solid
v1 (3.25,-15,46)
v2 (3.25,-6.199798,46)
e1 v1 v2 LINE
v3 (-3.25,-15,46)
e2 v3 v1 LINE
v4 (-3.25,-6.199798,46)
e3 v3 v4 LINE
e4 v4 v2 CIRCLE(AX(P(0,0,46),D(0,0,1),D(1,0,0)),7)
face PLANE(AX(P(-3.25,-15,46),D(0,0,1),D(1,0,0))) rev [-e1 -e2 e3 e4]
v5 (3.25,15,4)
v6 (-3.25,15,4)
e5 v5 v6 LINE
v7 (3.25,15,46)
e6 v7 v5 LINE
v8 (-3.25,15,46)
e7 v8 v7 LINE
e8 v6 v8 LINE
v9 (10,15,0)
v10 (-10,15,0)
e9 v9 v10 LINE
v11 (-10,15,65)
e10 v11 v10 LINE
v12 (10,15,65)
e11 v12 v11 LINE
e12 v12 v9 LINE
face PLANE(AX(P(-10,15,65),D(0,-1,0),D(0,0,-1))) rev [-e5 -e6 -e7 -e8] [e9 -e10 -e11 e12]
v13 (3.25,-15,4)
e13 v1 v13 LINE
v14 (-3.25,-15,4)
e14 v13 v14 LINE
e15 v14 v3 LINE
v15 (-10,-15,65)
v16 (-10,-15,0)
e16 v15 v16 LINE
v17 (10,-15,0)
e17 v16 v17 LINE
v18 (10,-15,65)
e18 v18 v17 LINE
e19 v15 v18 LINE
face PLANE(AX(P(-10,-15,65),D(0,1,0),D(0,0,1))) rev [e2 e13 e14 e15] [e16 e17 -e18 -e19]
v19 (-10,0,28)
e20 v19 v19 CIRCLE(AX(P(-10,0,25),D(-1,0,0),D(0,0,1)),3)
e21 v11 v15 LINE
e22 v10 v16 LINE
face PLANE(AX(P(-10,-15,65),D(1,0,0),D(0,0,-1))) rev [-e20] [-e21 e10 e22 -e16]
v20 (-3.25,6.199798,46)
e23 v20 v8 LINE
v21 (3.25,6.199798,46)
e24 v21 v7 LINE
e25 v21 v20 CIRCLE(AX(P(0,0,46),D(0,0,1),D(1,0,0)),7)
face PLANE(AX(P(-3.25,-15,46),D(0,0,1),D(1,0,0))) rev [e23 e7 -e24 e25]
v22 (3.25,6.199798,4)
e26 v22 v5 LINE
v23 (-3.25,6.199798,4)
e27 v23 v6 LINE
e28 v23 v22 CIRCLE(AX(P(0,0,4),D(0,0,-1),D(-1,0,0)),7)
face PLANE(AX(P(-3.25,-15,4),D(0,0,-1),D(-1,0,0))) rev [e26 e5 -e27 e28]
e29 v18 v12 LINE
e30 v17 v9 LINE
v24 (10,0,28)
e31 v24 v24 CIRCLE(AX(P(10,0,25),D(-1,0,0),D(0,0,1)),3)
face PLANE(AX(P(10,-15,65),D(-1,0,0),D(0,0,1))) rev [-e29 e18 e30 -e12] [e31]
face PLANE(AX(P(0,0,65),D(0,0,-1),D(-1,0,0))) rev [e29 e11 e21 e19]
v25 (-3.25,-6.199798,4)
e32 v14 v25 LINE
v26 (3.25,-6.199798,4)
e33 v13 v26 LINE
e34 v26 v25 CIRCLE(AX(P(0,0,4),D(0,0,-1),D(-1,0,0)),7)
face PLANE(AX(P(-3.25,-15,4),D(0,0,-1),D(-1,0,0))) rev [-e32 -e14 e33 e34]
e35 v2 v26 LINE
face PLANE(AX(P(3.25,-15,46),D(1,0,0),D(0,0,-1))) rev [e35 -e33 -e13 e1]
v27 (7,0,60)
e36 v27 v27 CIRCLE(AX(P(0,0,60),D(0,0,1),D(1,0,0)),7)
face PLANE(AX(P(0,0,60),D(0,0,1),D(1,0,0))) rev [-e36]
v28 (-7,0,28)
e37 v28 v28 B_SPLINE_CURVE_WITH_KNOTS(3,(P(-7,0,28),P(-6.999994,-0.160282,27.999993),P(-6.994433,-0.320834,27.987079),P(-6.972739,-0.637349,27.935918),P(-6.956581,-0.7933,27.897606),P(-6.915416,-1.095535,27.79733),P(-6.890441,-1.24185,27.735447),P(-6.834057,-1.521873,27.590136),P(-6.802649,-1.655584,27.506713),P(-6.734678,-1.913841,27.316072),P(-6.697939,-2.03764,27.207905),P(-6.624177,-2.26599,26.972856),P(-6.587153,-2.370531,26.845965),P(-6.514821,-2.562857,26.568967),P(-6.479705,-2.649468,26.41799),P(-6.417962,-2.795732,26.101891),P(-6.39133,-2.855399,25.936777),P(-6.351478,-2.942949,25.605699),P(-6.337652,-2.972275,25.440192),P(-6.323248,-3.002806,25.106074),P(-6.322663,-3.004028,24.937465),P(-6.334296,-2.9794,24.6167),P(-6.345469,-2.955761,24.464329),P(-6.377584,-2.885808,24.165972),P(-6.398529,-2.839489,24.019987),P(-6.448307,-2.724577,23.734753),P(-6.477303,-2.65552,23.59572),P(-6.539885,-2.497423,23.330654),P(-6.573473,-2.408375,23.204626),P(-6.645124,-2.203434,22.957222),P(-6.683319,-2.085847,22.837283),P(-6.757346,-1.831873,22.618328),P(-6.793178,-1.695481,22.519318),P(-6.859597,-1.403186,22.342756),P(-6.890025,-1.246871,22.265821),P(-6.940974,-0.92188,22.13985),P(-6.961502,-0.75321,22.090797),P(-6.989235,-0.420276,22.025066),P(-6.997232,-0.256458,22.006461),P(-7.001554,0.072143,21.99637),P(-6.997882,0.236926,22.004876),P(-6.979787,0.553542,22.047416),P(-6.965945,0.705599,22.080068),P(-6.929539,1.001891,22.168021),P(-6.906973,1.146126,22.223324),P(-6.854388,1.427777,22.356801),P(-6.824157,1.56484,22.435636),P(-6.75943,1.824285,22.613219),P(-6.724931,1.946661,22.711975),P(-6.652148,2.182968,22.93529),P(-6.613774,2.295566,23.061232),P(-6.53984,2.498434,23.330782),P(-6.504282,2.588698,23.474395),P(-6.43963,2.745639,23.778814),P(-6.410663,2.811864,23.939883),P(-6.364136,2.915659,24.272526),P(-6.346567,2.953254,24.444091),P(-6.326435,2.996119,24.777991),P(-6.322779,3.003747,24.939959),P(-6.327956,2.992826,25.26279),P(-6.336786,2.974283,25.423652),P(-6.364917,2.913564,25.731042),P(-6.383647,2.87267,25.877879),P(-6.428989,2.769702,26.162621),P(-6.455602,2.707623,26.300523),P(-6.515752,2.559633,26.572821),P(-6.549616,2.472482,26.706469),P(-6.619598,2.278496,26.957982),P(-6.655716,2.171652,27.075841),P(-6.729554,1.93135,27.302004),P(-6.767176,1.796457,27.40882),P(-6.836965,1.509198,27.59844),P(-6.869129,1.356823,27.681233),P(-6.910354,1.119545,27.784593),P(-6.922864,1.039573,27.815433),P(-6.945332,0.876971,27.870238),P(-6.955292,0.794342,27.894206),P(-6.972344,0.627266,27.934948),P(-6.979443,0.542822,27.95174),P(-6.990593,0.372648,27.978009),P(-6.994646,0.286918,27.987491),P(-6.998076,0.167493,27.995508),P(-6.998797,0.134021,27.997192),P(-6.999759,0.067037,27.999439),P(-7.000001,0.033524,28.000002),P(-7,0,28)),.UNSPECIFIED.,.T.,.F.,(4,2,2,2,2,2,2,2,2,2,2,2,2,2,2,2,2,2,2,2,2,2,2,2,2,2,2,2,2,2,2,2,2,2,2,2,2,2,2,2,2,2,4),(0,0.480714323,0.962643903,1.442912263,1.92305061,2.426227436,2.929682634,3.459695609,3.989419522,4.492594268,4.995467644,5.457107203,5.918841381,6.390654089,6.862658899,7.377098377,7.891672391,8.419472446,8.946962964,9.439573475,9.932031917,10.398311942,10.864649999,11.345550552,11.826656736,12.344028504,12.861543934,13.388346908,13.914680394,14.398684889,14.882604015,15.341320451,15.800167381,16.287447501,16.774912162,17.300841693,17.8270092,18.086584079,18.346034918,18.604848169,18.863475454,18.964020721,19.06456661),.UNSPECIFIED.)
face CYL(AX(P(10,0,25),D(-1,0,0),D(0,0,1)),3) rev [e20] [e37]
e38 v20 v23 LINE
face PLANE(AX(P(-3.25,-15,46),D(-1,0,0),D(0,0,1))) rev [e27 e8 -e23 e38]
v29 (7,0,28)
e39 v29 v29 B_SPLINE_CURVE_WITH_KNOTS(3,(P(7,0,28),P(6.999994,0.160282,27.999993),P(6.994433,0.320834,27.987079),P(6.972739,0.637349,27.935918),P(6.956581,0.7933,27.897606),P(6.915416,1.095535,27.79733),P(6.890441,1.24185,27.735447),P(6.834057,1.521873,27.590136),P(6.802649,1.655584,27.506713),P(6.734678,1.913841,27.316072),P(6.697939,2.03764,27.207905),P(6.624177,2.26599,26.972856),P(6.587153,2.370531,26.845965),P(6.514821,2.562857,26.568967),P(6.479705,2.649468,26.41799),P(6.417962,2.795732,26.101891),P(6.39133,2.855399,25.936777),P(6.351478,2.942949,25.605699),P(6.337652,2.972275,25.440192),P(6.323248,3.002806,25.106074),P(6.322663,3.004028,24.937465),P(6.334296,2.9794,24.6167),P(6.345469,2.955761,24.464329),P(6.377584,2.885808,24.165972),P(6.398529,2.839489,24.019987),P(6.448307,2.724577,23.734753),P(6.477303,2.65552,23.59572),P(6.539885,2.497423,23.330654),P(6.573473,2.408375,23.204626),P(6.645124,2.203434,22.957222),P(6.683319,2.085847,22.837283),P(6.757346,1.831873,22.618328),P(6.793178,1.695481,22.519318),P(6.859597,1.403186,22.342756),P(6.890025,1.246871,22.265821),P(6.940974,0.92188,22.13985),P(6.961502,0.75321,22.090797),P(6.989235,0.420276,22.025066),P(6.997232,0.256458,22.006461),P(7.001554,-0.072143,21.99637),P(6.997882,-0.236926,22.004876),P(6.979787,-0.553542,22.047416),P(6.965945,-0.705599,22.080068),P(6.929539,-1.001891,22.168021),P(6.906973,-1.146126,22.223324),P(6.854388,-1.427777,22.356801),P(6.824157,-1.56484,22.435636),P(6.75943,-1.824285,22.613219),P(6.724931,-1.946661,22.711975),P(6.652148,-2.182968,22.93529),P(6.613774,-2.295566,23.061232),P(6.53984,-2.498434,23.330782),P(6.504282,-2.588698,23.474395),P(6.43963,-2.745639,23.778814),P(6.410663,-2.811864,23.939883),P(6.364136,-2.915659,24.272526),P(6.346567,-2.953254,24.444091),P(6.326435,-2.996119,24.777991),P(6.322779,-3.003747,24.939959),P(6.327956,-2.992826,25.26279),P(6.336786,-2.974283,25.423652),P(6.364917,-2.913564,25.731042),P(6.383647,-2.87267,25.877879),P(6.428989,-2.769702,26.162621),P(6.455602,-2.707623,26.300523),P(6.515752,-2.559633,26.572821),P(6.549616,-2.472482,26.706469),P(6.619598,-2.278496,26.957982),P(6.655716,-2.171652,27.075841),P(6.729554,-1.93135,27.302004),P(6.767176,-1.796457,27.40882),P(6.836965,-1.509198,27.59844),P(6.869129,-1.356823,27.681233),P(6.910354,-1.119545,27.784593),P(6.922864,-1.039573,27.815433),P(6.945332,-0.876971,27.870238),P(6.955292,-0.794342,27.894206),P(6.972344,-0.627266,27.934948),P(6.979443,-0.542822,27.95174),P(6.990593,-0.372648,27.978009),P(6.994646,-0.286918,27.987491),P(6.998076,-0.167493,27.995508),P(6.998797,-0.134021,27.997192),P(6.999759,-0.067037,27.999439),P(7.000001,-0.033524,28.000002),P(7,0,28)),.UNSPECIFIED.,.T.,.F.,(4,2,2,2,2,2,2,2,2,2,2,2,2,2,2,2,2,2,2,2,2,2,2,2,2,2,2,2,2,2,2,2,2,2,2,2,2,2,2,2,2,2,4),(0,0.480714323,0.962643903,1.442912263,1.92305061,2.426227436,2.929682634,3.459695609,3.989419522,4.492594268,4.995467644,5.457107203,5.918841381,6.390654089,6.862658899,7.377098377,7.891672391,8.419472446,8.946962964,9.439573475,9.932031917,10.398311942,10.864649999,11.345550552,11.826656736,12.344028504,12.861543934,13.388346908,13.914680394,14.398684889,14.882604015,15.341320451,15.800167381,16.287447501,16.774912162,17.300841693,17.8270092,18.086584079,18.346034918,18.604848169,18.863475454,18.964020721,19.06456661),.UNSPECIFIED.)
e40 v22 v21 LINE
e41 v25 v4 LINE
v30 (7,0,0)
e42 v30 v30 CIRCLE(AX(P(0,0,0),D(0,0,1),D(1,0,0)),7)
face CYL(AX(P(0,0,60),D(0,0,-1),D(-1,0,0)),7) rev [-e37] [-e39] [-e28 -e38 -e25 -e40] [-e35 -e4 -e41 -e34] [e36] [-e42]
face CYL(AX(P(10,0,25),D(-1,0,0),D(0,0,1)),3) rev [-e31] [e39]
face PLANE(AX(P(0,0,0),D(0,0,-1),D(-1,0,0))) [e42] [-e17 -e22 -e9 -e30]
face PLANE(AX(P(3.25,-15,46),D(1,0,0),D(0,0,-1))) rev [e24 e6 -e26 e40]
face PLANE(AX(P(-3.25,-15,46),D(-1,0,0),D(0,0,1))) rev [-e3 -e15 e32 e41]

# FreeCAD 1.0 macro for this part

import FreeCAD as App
import Part
import Sketcher
from FreeCAD import Vector
Q = App.Units.Quantity

doc = App.newDocument("Part")
body = doc.addObject("PartDesign::Body", "Body")

sketch1 = body.newObject("Sketcher::SketchObject", "Sketch")
sketch1.AttachmentSupport = (doc.getObject("XY_Plane"), [""])
sketch1.MapMode = "FlatFace"
sketch1.addGeometry([
    Part.LineSegment(Vector(-10, 15, 0), Vector(-10, -15, 0)),
    Part.LineSegment(Vector(-10, -15, 0), Vector(10, -15, 0)),
    Part.LineSegment(Vector(10, -15, 0), Vector(10, 15, 0)),
    Part.LineSegment(Vector(10, 15, 0), Vector(-10, 15, 0)),
], False)
sketch1.addConstraint([
    Sketcher.Constraint("Coincident", 0, 2, 1, 1),
    Sketcher.Constraint("Coincident", 1, 2, 2, 1),
    Sketcher.Constraint("Coincident", 2, 2, 3, 1),
    Sketcher.Constraint("Coincident", 3, 2, 0, 1),
    Sketcher.Constraint("Vertical", 0),
    Sketcher.Constraint("Horizontal", 1),
    Sketcher.Constraint("Vertical", 2),
    Sketcher.Constraint("Horizontal", 3),
    Sketcher.Constraint("Symmetric", 0, 2, 2, 2, -1, 1),
    Sketcher.Constraint("DistanceX", 1, 1, 1, 2, Q("20 mm")),
    Sketcher.Constraint("DistanceY", 0, 2, 0, 1, Q("30 mm")),
])
pad1 = body.newObject("PartDesign::Pad", "Pad")
pad1.Profile = sketch1
pad1.Length = 65

sketch2 = body.newObject("Sketcher::SketchObject", "Sketch001")
sketch2.AttachmentSupport = (doc.getObject("XY_Plane"), [""])
sketch2.MapMode = "FlatFace"
sketch2.addGeometry(Part.Circle(Vector(0, 0, 0), Vector(0, 0, 1), 7), False)
sketch2.addConstraint([
    Sketcher.Constraint("Coincident", 0, 3, -1, 1),
    Sketcher.Constraint("Diameter", 0, Q("14 mm")),
])
pocket1 = body.newObject("PartDesign::Pocket", "Pocket")
pocket1.Profile = sketch2
pocket1.Length = 60
pocket1.Reversed = True

sketch3 = body.newObject("Sketcher::SketchObject", "Sketch002")
sketch3.AttachmentSupport = (doc.getObject("YZ_Plane"), [""])
sketch3.MapMode = "FlatFace"
sketch3.AttachmentOffset = App.Placement(Vector(0, 0, -10), App.Rotation())
sketch3.addGeometry(Part.Circle(Vector(0, 25, 0), Vector(0, 0, 1), 3), False)
sketch3.addConstraint([
    Sketcher.Constraint("PointOnObject", 0, 3, -2),
    Sketcher.Constraint("Diameter", 0, Q("6 mm")),
    Sketcher.Constraint("DistanceY", -1, 1, 0, 3, Q("25 mm")),
])
pocket2 = body.newObject("PartDesign::Pocket", "Pocket001")
pocket2.Profile = sketch3
pocket2.Type = "ThroughAll"
pocket2.Reversed = True

sketch4 = body.newObject("Sketcher::SketchObject", "Sketch003")
sketch4.AttachmentSupport = (doc.getObject("XZ_Plane"), [""])
sketch4.MapMode = "FlatFace"
sketch4.AttachmentOffset = App.Placement(Vector(0, 0, -15), App.Rotation())
sketch4.addGeometry([
    Part.LineSegment(Vector(-3.25, 4, 0), Vector(-3.25, 46, 0)),
    Part.LineSegment(Vector(-3.25, 46, 0), Vector(3.25, 46, 0)),
    Part.LineSegment(Vector(3.25, 46, 0), Vector(3.25, 4, 0)),
    Part.LineSegment(Vector(3.25, 4, 0), Vector(-3.25, 4, 0)),
], False)
sketch4.addConstraint([
    Sketcher.Constraint("Coincident", 0, 2, 1, 1),
    Sketcher.Constraint("Coincident", 1, 2, 2, 1),
    Sketcher.Constraint("Coincident", 2, 2, 3, 1),
    Sketcher.Constraint("Coincident", 3, 2, 0, 1),
    Sketcher.Constraint("Vertical", 0),
    Sketcher.Constraint("Horizontal", 1),
    Sketcher.Constraint("Vertical", 2),
    Sketcher.Constraint("Horizontal", 3),
    Sketcher.Constraint("DistanceY", 0, 1, 0, 2, Q("42 mm")),
    Sketcher.Constraint("DistanceX", 1, 1, 1, 2, Q("6.5 mm")),
    Sketcher.Constraint("DistanceY", -1, 1, 0, 2, Q("46 mm")),
    Sketcher.Constraint("DistanceX", 0, 2, -1, 1, Q("3.25 mm")),
])
pocket3 = body.newObject("PartDesign::Pocket", "Pocket002")
pocket3.Profile = sketch4
pocket3.Type = "ThroughAll"
pocket3.Reversed = True

doc.recompute()
